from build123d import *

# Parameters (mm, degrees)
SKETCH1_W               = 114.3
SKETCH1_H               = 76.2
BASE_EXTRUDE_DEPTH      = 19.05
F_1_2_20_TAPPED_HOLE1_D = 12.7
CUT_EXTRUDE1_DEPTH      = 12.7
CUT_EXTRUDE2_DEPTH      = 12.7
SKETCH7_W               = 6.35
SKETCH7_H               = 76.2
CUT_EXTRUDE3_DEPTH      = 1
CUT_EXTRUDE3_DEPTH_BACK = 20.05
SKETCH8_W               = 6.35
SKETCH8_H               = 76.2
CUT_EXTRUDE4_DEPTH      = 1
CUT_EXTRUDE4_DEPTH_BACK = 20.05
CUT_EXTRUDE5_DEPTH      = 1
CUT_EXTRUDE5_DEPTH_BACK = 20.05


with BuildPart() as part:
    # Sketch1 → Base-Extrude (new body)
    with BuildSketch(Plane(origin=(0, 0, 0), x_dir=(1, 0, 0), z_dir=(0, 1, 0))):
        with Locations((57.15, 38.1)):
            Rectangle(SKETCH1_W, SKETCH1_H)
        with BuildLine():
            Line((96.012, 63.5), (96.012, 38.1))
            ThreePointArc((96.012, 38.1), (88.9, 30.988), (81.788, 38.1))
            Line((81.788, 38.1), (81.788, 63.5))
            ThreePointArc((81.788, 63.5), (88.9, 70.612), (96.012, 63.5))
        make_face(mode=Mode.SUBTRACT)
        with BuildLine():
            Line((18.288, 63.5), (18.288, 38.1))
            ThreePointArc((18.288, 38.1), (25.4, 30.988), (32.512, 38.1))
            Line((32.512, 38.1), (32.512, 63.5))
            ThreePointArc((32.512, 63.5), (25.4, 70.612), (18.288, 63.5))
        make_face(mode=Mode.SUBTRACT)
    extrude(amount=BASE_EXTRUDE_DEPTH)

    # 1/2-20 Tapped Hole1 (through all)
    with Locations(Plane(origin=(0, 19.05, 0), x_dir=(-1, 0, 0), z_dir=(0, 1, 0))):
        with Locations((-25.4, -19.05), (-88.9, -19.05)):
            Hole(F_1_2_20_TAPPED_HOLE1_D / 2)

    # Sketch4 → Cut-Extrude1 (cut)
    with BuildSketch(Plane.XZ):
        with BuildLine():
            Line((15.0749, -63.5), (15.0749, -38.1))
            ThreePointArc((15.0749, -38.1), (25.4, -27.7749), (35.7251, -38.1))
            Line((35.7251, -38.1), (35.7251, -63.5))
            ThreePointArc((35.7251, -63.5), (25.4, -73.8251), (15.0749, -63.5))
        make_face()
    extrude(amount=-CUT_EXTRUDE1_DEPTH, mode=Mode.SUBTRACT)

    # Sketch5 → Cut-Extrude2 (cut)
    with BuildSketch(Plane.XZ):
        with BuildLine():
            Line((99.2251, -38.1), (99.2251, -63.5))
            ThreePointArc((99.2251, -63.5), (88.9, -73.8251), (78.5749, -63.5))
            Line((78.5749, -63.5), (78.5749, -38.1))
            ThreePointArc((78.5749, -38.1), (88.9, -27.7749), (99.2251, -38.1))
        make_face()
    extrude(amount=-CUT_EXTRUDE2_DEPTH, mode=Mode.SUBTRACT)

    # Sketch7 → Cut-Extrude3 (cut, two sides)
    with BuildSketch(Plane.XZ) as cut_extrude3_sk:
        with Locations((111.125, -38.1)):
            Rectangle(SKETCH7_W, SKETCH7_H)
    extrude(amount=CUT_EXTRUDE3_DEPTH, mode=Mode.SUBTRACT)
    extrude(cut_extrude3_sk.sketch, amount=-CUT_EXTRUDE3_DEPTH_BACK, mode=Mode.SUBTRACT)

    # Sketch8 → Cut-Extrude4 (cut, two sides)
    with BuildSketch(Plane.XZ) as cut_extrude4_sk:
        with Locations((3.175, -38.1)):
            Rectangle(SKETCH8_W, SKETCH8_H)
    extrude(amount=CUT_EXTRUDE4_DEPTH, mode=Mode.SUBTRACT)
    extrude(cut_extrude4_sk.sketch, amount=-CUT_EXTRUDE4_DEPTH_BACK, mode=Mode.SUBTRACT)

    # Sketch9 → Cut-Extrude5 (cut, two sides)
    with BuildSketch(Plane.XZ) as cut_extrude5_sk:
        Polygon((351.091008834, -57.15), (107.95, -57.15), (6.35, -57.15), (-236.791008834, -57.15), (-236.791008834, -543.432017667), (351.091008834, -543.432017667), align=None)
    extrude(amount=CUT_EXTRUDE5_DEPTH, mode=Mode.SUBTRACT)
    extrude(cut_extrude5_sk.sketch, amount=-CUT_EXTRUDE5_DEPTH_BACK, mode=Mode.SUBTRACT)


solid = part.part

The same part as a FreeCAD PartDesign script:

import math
import FreeCAD as App
import Part
import Sketcher

V = App.Vector
Q = App.Units.Quantity


def add_polygon(sketch, points):
    """Adds a closed chain of lines whose ends are joined by coincident constraints."""
    first, n = sketch.GeometryCount, len(points)
    for a, b in zip(points, points[1:] + points[:1]):
        sketch.addGeometry(Part.LineSegment(App.Vector(*a, 0), App.Vector(*b, 0)), False)
    for i in range(n):
        sketch.addConstraint(Sketcher.Constraint("Coincident", first + i, 2, first + (i + 1) % n, 1))

doc = App.newDocument("Part")
body = doc.addObject("PartDesign::Body", "Body")

# Sketch on XZ plane
sketch1 = body.newObject("Sketcher::SketchObject", "Sketch")
sketch1.AttachmentSupport = (doc.getObject("XZ_Plane"), [""])
sketch1.MapMode = "FlatFace"
add_polygon(sketch1, [(0, -76), (0, 0), (114, 0), (114, -76)])  # lines 0-3
sketch1.addGeometry(Part.ArcOfCircle(Part.Circle(V(89, -64, 0), V(0, 0, 1), 7), math.radians(180), math.radians(360)), False)  # 4
sketch1.addGeometry(Part.LineSegment(V(96, -64, 0), V(96, -38, 0)), False)  # 5
sketch1.addGeometry(Part.ArcOfCircle(Part.Circle(V(89, -38, 0), V(0, 0, 1), 7), math.radians(0), math.radians(180)), False)  # 6
sketch1.addGeometry(Part.LineSegment(V(82, -38, 0), V(82, -64, 0)), False)  # 7
sketch1.addGeometry(Part.LineSegment(V(18, -38, 0), V(18, -64, 0)), False)  # 8
sketch1.addGeometry(Part.ArcOfCircle(Part.Circle(V(25, -64, 0), V(0, 0, 1), 7), math.radians(180), math.radians(360)), False)  # 9
sketch1.addGeometry(Part.LineSegment(V(33, -64, 0), V(33, -38, 0)), False)  # 10
sketch1.addGeometry(Part.ArcOfCircle(Part.Circle(V(25, -38, 0), V(0, 0, 1), 7), math.radians(0), math.radians(180)), False)  # 11
sketch1.addConstraint([
    Sketcher.Constraint("Tangent", 4, 2, 5, 1),
    Sketcher.Constraint("Tangent", 5, 2, 6, 1),
    Sketcher.Constraint("Tangent", 6, 2, 7, 1),
    Sketcher.Constraint("Tangent", 7, 2, 4, 1),
    Sketcher.Constraint("Tangent", 8, 2, 9, 1),
    Sketcher.Constraint("Tangent", 9, 2, 10, 1),
    Sketcher.Constraint("Tangent", 10, 2, 11, 1),
    Sketcher.Constraint("Tangent", 11, 2, 8, 1),
    Sketcher.Constraint("Vertical", 0),
    Sketcher.Constraint("Horizontal", 1),
    Sketcher.Constraint("Vertical", 2),
    Sketcher.Constraint("Horizontal", 3),
    Sketcher.Constraint("Vertical", 5),
    Sketcher.Constraint("Vertical", 7),
    Sketcher.Constraint("Vertical", 8),
    Sketcher.Constraint("Vertical", 10),
    Sketcher.Constraint("Coincident", 0, 2, -1, 1),
    Sketcher.Constraint("Equal", 6, 9),
    Sketcher.Constraint("Horizontal", 4, 3, 9, 3),
    Sketcher.Constraint("Horizontal", 6, 3, 11, 3),
    Sketcher.Constraint("DistanceY", 0, 1, 0, 2, Q("3 in")),
    Sketcher.Constraint("DistanceY", 5, 1, 5, 2, Q("1 in")),
    Sketcher.Constraint("Radius", 4, Q("0.28 in")),
    Sketcher.Constraint("DistanceX", 1, 1, 1, 2, Q("4.5 in")),
    Sketcher.Constraint("DistanceX", -1, 1, 9, 3, Q("1 in")),
    Sketcher.Constraint("DistanceX", 6, 3, 1, 2, Q("1 in")),
    Sketcher.Constraint("DistanceY", 4, 3, -1, 1, Q("2.5 in")),
])
pad1 = body.newObject("PartDesign::Pad", "Pad")
pad1.Profile = sketch1
pad1.Length = Q("0.75 in")
pad1.Reversed = True

# Sketch on XZ plane
sketch2 = body.newObject("Sketcher::SketchObject", "Sketch001")
sketch2.AttachmentSupport = (doc.getObject("XZ_Plane"), [""])
sketch2.MapMode = "FlatFace"
sketch2.AttachmentOffset = App.Placement(V(0, 0, -0.75 * 25.4), App.Rotation())
sketch2.addGeometry([
    Part.Circle(V(25, -19, 0), V(0, 0, 1), 6),
    Part.Circle(V(89, -19, 0), V(0, 0, 1), 6),
], False)
sketch2.addConstraint([
    Sketcher.Constraint("Equal", 0, 1),
    Sketcher.Constraint("Horizontal", 0, 3, 1, 3),
    Sketcher.Constraint("Diameter", 0, Q("0.5 in")),
    Sketcher.Constraint("DistanceX", -1, 1, 0, 3, Q("1 in")),
    Sketcher.Constraint("DistanceX", -1, 1, 1, 3, Q("3.5 in")),
    Sketcher.Constraint("DistanceY", 0, 3, -1, 1, Q("0.75 in")),
])
doc.recompute()
hole = body.newObject("PartDesign::Hole", "Hole")
hole.Profile = sketch2
hole.ThreadType = "None"
hole.Diameter = Q("0.5 in")
hole.DepthType = "ThroughAll"
hole.Reversed = True

# Sketch on XZ plane
sketch3 = body.newObject("Sketcher::SketchObject", "Sketch002")
sketch3.AttachmentSupport = (doc.getObject("XZ_Plane"), [""])
sketch3.MapMode = "FlatFace"
sketch3.addGeometry([
    Part.LineSegment(V(15, -38, 0), V(15, -64, 0)),
    Part.ArcOfCircle(Part.Circle(V(25, -64, 0), V(0, 0, 1), 10), math.radians(180), math.radians(360)),
    Part.LineSegment(V(36, -64, 0), V(36, -38, 0)),
    Part.ArcOfCircle(Part.Circle(V(25, -38, 0), V(0, 0, 1), 10), math.radians(0), math.radians(180)),
], False)
sketch3.addConstraint([
    Sketcher.Constraint("Tangent", 0, 2, 1, 1),
    Sketcher.Constraint("Tangent", 1, 2, 2, 1),
    Sketcher.Constraint("Tangent", 2, 2, 3, 1),
    Sketcher.Constraint("Tangent", 3, 2, 0, 1),
    Sketcher.Constraint("Vertical", 0),
    Sketcher.Constraint("Vertical", 2),
    Sketcher.Constraint("DistanceY", 0, 2, 0, 1, Q("1 in")),
    Sketcher.Constraint("DistanceX", -1, 1, 1, 3, Q("1 in")),
    Sketcher.Constraint("DistanceY", 1, 3, -1, 1, Q("2.5 in")),
    Sketcher.Constraint("Radius", 1, Q("0.4065 in")),
])
pocket1 = body.newObject("PartDesign::Pocket", "Pocket")
pocket1.Profile = sketch3
pocket1.Length = Q("0.5 in")

# Sketch on XZ plane
sketch4 = body.newObject("Sketcher::SketchObject", "Sketch003")
sketch4.AttachmentSupport = (doc.getObject("XZ_Plane"), [""])
sketch4.MapMode = "FlatFace"
sketch4.addGeometry([
    Part.LineSegment(V(99, -64, 0), V(99, -38, 0)),
    Part.ArcOfCircle(Part.Circle(V(89, -38, 0), V(0, 0, 1), 10), math.radians(0), math.radians(180)),
    Part.LineSegment(V(79, -38, 0), V(79, -64, 0)),
    Part.ArcOfCircle(Part.Circle(V(89, -64, 0), V(0, 0, 1), 10), math.radians(180), math.radians(360)),
], False)
sketch4.addConstraint([
    Sketcher.Constraint("Tangent", 0, 2, 1, 1),
    Sketcher.Constraint("Tangent", 1, 2, 2, 1),
    Sketcher.Constraint("Tangent", 2, 2, 3, 1),
    Sketcher.Constraint("Tangent", 3, 2, 0, 1),
    Sketcher.Constraint("Vertical", 0),
    Sketcher.Constraint("Vertical", 2),
    Sketcher.Constraint("DistanceY", 0, 1, 0, 2, Q("1 in")),
    Sketcher.Constraint("DistanceX", -1, 1, 1, 3, Q("3.5 in")),
    Sketcher.Constraint("DistanceY", 1, 3, -1, 1, Q("1.5 in")),
    Sketcher.Constraint("Radius", 1, Q("0.4065 in")),
])
pocket2 = body.newObject("PartDesign::Pocket", "Pocket001")
pocket2.Profile = sketch4
pocket2.Length = Q("0.5 in")

# Sketch on XZ plane
sketch5 = body.newObject("Sketcher::SketchObject", "Sketch004")
sketch5.AttachmentSupport = (doc.getObject("XZ_Plane"), [""])
sketch5.MapMode = "FlatFace"
add_polygon(sketch5, [(108, 0), (108, -76), (114, -76), (114, 0)])  # lines 0-3
sketch5.addConstraint([
    Sketcher.Constraint("Vertical", 0),
    Sketcher.Constraint("Horizontal", 1),
    Sketcher.Constraint("Vertical", 2),
    Sketcher.Constraint("Horizontal", 3),
    Sketcher.Constraint("PointOnObject", 2, 2, -1),
    Sketcher.Constraint("DistanceY", 0, 2, 0, 1, Q("3 in")),
    Sketcher.Constraint("DistanceX", 1, 1, 1, 2, Q("0.25 in")),
    Sketcher.Constraint("DistanceX", -1, 1, 1, 2, Q("4.5 in")),
])
pocket3 = body.newObject("PartDesign::Pocket", "Pocket002")
pocket3.Profile = sketch5
pocket3.Type = "ThroughAll"
pocket3.Midplane = True

# Sketch on XZ plane
sketch6 = body.newObject("Sketcher::SketchObject", "Sketch005")
sketch6.AttachmentSupport = (doc.getObject("XZ_Plane"), [""])
sketch6.MapMode = "FlatFace"
add_polygon(sketch6, [(0, 0), (0, -76), (6, -76), (6, 0)])  # lines 0-3
sketch6.addConstraint([
    Sketcher.Constraint("Vertical", 0),
    Sketcher.Constraint("Horizontal", 1),
    Sketcher.Constraint("Vertical", 2),
    Sketcher.Constraint("Horizontal", 3),
    Sketcher.Constraint("Coincident", 3, 2, -1, 1),
    Sketcher.Constraint("DistanceY", 0, 2, 0, 1, Q("3 in")),
    Sketcher.Constraint("DistanceX", 1, 1, 1, 2, Q("0.25 in")),
])
pocket4 = body.newObject("PartDesign::Pocket", "Pocket003")
pocket4.Profile = sketch6
pocket4.Type = "ThroughAll"
pocket4.Midplane = True

# Sketch on XZ plane
sketch7 = body.newObject("Sketcher::SketchObject", "Sketch006")
sketch7.AttachmentSupport = (doc.getObject("XZ_Plane"), [""])
sketch7.MapMode = "FlatFace"
add_polygon(sketch7, [(351, -57), (-237, -57), (-237, -543), (351, -543)])  # lines 0-3
sketch7.addConstraint([
    Sketcher.Constraint("Horizontal", 0),
    Sketcher.Constraint("Vertical", 1),
    Sketcher.Constraint("Horizontal", 2),
    Sketcher.Constraint("Vertical", 3),
    Sketcher.Constraint("DistanceY", 0, 2, -1, 1, Q("2.25 in")),
    Sketcher.Constraint("DistanceX", 0, 2, 0, 1, 587.882018),
    Sketcher.Constraint("DistanceY", 1, 2, 1, 1, 486.282018),
    Sketcher.Constraint("DistanceX", 0, 2, -1, 1, 236.791009),
])
pocket5 = body.newObject("PartDesign::Pocket", "Pocket004")
pocket5.Profile = sketch7
pocket5.Type = "ThroughAll"
pocket5.Midplane = True

doc.recompute()
